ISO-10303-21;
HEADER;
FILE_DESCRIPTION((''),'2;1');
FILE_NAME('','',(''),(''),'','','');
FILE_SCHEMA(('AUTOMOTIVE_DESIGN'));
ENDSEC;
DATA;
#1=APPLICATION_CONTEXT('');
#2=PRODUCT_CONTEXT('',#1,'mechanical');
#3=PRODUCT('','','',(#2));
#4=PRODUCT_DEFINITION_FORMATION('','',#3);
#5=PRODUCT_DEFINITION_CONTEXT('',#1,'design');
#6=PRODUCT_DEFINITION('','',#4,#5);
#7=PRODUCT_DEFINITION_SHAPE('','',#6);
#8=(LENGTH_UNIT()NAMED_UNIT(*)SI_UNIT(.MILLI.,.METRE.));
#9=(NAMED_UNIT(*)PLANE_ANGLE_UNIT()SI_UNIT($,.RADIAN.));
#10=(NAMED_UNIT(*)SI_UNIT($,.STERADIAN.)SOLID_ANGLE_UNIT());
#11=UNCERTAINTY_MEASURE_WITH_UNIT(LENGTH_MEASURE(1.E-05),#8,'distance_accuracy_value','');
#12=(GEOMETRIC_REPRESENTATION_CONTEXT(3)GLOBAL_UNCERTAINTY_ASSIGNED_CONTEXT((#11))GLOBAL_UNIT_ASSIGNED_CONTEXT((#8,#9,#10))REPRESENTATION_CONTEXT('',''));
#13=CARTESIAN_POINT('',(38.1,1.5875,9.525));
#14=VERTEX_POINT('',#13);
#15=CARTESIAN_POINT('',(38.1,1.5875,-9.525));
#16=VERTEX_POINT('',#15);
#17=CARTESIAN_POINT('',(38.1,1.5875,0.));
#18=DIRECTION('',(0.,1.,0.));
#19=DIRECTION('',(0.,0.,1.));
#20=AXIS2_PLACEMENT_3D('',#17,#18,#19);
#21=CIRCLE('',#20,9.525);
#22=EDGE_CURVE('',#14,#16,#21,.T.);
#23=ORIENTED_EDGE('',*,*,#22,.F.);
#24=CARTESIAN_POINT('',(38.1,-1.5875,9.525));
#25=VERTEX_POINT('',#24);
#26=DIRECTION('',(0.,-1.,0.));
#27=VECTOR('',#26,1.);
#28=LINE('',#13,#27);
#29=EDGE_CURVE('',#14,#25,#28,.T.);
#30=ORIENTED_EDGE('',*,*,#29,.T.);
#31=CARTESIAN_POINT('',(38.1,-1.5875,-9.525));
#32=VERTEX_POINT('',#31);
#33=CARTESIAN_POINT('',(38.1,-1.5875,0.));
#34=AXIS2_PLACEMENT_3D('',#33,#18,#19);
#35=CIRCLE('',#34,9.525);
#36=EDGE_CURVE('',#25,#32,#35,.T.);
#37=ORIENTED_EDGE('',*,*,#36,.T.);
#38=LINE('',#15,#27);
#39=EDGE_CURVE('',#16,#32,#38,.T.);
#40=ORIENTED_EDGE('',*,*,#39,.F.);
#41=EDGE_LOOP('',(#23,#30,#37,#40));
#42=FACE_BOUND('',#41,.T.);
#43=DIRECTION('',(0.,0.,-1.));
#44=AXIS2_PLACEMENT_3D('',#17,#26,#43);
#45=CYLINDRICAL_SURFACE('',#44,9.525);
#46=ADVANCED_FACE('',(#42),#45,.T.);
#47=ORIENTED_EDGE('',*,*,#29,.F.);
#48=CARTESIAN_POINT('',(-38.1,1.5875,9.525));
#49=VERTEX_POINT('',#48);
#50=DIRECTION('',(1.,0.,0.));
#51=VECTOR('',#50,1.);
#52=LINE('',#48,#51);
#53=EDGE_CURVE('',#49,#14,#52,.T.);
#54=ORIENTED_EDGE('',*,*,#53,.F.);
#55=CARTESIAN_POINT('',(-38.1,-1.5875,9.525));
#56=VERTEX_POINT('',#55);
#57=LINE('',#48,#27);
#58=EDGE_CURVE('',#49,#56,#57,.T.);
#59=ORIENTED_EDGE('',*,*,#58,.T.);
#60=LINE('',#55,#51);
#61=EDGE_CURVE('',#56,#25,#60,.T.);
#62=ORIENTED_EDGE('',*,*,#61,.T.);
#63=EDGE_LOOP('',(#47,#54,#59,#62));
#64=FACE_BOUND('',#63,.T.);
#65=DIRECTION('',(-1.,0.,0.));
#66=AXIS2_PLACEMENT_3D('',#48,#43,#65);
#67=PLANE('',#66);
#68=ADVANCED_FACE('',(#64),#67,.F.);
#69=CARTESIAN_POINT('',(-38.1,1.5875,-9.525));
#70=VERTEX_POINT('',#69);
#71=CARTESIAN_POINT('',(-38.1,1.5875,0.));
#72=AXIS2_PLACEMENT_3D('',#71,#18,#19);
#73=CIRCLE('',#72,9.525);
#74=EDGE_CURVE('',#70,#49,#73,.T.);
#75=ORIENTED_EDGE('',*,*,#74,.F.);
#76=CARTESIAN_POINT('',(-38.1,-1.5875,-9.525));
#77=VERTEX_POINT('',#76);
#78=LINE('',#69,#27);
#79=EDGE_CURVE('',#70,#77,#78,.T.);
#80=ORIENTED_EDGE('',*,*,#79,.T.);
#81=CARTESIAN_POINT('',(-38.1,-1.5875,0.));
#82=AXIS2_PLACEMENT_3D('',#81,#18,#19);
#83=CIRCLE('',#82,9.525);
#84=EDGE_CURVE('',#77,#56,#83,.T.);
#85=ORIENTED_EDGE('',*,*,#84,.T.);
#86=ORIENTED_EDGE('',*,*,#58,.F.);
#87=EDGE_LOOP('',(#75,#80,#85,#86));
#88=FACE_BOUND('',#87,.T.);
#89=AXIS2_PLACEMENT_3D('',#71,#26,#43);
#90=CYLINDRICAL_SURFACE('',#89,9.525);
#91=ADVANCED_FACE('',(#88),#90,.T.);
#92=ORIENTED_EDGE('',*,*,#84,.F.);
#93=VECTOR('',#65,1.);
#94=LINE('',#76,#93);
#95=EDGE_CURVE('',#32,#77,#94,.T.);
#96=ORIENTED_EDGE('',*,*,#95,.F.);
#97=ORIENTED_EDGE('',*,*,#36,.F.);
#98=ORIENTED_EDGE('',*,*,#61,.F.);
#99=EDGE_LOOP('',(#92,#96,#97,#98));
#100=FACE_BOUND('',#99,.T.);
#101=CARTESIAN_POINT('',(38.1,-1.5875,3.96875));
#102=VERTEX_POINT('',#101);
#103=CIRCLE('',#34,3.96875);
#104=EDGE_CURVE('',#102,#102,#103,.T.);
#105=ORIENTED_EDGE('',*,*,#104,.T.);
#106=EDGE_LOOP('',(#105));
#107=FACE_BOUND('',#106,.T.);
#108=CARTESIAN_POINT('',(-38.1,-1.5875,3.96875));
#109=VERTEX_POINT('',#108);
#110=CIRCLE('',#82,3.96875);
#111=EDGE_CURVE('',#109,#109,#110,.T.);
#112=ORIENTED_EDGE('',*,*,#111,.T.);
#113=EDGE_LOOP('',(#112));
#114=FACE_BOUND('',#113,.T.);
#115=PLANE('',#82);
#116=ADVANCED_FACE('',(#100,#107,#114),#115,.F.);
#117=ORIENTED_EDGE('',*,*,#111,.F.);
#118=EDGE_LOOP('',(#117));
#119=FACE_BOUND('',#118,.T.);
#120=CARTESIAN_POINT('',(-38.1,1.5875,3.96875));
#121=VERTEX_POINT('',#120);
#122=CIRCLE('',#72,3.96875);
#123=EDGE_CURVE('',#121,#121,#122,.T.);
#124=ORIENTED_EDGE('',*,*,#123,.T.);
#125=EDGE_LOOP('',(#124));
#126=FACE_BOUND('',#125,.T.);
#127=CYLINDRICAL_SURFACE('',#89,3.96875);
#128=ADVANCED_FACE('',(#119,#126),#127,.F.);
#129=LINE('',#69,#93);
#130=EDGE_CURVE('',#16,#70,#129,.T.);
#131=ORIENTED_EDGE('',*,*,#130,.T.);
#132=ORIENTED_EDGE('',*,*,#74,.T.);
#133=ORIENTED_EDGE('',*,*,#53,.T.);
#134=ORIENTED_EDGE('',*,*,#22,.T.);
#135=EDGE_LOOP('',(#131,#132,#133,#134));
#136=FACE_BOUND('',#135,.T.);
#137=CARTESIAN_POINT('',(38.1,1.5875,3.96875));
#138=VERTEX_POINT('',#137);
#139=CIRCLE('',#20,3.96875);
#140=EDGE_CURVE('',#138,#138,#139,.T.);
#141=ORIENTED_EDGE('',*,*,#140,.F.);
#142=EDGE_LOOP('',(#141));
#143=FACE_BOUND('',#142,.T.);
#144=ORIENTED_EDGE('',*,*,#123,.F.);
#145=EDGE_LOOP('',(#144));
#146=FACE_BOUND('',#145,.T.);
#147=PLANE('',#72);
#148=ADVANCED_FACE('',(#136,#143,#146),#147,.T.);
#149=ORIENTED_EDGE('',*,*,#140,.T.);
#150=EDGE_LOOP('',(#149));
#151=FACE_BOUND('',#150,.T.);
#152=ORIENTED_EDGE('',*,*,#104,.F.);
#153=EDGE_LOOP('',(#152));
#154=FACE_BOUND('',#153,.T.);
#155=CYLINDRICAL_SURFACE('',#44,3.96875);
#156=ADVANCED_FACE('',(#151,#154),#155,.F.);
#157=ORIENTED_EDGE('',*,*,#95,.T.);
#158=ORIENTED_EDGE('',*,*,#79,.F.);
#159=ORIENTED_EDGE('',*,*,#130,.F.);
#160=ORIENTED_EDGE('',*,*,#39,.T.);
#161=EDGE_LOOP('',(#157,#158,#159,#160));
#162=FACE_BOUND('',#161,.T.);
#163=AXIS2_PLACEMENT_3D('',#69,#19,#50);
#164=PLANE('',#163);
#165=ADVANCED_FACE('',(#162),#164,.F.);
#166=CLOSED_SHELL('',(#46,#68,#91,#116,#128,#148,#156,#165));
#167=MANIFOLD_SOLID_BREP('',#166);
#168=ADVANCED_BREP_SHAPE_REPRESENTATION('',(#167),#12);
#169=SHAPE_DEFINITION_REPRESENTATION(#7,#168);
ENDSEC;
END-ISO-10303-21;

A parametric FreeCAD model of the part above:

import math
import FreeCAD as App
import Part
import Sketcher
Q = App.Units.Quantity

doc = App.newDocument("Part")
body = doc.addObject("PartDesign::Body", "Body")

sketch1 = body.newObject("Sketcher::SketchObject", "Sketch")
sketch1.AttachmentSupport = (doc.getObject("XZ_Plane"), [""])
sketch1.MapMode = "FlatFace"
sketch1.addGeometry(Part.LineSegment(App.Vector(38.1, -9.5, 0), App.Vector(-38.1, -9.5, 0)), False)
sketch1.addGeometry(Part.ArcOfCircle(Part.Circle(App.Vector(-38.1, 0, 0), App.Vector(0, 0, 1), 9.5), math.radians(90), math.radians(270)), False)
sketch1.addGeometry(Part.LineSegment(App.Vector(-38.1, 9.5, 0), App.Vector(38.1, 9.5, 0)), False)
sketch1.addGeometry(Part.ArcOfCircle(Part.Circle(App.Vector(38.1, 0, 0), App.Vector(0, 0, 1), 9.5), math.radians(-90), math.radians(90)), False)
sketch1.addGeometry(Part.Circle(App.Vector(38.1, 0, 0), App.Vector(0, 0, 1), 4), False)
sketch1.addGeometry(Part.Circle(App.Vector(-38.1, 0, 0), App.Vector(0, 0, 1), 4), False)
sketch1.addConstraint(Sketcher.Constraint("Tangent", 0, 2, 1, 2))
sketch1.addConstraint(Sketcher.Constraint("Tangent", 1, 1, 2, 1))
sketch1.addConstraint(Sketcher.Constraint("Tangent", 2, 2, 3, 2))
sketch1.addConstraint(Sketcher.Constraint("Tangent", 3, 1, 0, 1))
sketch1.addConstraint(Sketcher.Constraint("Horizontal", 0))
sketch1.addConstraint(Sketcher.Constraint("Horizontal", 2))
sketch1.addConstraint(Sketcher.Constraint("Coincident", 4, 3, 3, 3))
sketch1.addConstraint(Sketcher.Constraint("Coincident", 5, 3, 1, 3))
sketch1.addConstraint(Sketcher.Constraint("Equal", 4, 5))
sketch1.addConstraint(Sketcher.Constraint("Symmetric", 1, 3, 3, 3, -1, 1))
sketch1.addConstraint(Sketcher.Constraint("DistanceX", 0, 2, 0, 1, Q("3 in")))
sketch1.addConstraint(Sketcher.Constraint("Diameter", 4, Q("0.3125 in")))
sketch1.addConstraint(Sketcher.Constraint("Radius", 1, Q("0.375 in")))
pad1 = body.newObject("PartDesign::Pad", "Pad")
pad1.Profile = sketch1
pad1.Length = Q("0.125 in")
pad1.Midplane = True

doc.recompute()
